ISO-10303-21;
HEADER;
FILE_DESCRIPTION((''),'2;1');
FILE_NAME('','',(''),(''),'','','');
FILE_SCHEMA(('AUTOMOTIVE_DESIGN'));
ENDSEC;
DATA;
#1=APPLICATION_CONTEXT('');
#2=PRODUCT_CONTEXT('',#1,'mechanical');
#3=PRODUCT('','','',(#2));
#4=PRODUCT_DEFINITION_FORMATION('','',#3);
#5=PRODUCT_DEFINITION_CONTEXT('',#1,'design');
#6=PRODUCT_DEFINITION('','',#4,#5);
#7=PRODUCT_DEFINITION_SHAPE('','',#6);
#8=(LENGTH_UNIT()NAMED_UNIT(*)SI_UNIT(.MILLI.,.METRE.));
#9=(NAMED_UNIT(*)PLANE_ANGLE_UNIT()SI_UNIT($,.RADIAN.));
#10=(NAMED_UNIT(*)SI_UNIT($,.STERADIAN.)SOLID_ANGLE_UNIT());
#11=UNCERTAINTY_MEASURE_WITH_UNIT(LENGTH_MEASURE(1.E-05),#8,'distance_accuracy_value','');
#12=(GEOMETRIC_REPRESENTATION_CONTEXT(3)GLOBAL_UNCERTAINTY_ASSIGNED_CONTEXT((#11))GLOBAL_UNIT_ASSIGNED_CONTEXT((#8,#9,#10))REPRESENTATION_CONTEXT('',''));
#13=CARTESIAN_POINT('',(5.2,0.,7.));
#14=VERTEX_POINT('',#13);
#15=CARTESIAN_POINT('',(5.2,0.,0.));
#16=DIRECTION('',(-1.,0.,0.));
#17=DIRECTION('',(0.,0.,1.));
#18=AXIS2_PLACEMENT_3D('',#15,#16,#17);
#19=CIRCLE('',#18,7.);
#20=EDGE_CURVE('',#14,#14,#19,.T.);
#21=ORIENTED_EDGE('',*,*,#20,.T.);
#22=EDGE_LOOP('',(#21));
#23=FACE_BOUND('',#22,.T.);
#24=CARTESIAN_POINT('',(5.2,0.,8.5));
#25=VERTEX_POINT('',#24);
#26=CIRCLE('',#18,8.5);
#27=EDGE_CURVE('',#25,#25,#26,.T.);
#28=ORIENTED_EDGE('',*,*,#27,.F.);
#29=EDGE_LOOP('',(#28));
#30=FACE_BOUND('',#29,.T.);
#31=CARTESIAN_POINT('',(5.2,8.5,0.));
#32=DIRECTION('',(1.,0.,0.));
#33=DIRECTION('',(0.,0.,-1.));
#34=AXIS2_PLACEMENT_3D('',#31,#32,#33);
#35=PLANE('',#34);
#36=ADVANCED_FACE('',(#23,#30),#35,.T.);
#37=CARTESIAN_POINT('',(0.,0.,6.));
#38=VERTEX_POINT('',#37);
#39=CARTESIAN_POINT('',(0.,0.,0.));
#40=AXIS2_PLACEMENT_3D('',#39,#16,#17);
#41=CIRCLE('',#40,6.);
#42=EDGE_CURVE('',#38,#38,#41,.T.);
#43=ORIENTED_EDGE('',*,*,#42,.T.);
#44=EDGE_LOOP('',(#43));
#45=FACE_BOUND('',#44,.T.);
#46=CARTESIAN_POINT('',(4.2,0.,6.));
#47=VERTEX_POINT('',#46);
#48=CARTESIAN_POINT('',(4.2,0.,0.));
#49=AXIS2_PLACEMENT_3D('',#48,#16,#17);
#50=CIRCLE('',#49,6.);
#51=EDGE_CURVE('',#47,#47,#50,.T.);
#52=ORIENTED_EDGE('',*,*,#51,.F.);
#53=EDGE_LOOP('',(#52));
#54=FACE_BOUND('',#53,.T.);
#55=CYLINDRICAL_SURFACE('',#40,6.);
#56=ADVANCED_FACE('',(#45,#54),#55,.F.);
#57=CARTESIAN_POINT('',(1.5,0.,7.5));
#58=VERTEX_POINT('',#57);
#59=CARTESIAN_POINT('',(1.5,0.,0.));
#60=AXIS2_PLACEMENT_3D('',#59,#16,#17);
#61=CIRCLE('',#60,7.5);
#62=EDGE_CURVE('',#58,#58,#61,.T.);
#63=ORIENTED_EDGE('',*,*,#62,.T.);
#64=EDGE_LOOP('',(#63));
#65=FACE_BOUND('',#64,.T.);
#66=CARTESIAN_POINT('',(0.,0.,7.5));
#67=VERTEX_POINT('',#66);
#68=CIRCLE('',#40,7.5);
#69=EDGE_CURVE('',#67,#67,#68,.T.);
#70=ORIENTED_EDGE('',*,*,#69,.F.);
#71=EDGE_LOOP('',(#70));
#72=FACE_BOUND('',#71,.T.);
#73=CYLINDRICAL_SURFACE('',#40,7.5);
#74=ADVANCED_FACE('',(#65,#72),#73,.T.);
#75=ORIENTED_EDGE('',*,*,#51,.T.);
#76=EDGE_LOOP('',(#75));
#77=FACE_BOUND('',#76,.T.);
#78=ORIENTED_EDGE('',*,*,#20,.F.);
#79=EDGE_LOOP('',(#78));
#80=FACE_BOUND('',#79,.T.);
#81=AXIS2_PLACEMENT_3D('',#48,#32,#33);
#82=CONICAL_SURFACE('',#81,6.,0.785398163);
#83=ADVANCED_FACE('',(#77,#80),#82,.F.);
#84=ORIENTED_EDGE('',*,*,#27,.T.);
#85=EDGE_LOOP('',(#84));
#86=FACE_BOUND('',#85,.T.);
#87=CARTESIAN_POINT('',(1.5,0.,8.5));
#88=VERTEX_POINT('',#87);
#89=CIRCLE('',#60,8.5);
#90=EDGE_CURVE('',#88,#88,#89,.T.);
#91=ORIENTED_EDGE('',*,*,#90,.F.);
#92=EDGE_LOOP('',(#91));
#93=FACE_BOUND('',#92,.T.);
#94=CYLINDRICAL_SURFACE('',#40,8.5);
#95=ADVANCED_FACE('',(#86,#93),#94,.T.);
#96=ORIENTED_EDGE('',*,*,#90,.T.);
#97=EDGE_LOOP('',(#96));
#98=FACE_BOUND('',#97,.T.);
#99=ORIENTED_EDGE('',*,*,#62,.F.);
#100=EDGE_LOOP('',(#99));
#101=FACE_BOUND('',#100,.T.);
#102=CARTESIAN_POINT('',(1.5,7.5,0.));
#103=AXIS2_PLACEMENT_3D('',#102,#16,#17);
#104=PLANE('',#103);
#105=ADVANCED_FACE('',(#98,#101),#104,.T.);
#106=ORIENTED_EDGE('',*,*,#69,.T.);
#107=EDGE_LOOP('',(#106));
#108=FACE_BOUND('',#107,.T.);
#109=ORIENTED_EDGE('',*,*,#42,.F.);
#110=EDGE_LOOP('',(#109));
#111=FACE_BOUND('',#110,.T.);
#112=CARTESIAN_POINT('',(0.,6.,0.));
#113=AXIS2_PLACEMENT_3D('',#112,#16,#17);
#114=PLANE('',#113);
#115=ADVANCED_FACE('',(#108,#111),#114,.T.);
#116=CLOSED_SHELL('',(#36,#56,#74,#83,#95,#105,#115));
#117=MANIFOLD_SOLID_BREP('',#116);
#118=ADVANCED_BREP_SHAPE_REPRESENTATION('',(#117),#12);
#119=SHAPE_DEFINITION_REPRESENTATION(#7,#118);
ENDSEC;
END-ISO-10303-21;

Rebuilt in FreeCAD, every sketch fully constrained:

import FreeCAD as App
import Part
import Sketcher

V = App.Vector
Q = App.Units.Quantity


def add_polygon(sketch, points):
    """Adds a closed chain of lines whose ends are joined by coincident constraints."""
    first, n = sketch.GeometryCount, len(points)
    for a, b in zip(points, points[1:] + points[:1]):
        sketch.addGeometry(Part.LineSegment(App.Vector(*a, 0), App.Vector(*b, 0)), False)
    for i in range(n):
        sketch.addConstraint(Sketcher.Constraint("Coincident", first + i, 2, first + (i + 1) % n, 1))

doc = App.newDocument("Part")
body = doc.addObject("PartDesign::Body", "Body")

# Sketch on XY plane
sketch1 = body.newObject("Sketcher::SketchObject", "Sketch")
sketch1.AttachmentSupport = (doc.getObject("XY_Plane"), [""])
sketch1.MapMode = "FlatFace"
add_polygon(sketch1, [(0, 7.5), (0, 6), (4.2, 6), (5.2, 7), (5.2, 8.5), (1.5, 8.5), (1.5, 7.5)])  # lines 0-6
sketch1.addConstraint([
    Sketcher.Constraint("Vertical", 0),
    Sketcher.Constraint("Horizontal", 1),
    Sketcher.Constraint("Vertical", 3),
    Sketcher.Constraint("Horizontal", 4),
    Sketcher.Constraint("Vertical", 5),
    Sketcher.Constraint("Horizontal", 6),
    Sketcher.Constraint("PointOnObject", 0, 2, -2),
    Sketcher.Constraint("Equal", 6, 0),
    Sketcher.Constraint("Equal", 0, 3),
    Sketcher.Constraint("DistanceY", 5, 2, 5, 1, Q("1 mm")),
    Sketcher.Constraint("Angle", 2, Q("45 deg")),
    Sketcher.Constraint("DistanceX", 1, 1, 1, 2, Q("4.2 mm")),
    Sketcher.Constraint("DistanceX", 4, 2, 4, 1, Q("3.7 mm")),
    Sketcher.Constraint("DistanceY", -1, 1, 0, 2, Q("6 mm")),
])
revolution = body.newObject("PartDesign::Revolution", "Revolution")
revolution.Profile = sketch1
revolution.ReferenceAxis = (sketch1, ["H_Axis"])
revolution.Angle = 360

doc.recompute()
